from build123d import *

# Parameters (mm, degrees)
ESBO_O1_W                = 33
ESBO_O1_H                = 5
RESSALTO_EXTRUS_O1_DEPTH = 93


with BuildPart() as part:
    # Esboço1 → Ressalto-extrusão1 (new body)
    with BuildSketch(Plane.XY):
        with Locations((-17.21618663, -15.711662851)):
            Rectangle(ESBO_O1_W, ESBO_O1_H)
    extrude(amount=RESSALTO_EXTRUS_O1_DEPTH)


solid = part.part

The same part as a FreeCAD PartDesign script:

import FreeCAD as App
import Part
import Sketcher
from FreeCAD import Vector
Q = App.Units.Quantity


def add_polygon(sketch, points):
    """Adds a closed chain of lines whose ends are joined by coincident constraints."""
    first, n = sketch.GeometryCount, len(points)
    for a, b in zip(points, points[1:] + points[:1]):
        sketch.addGeometry(Part.LineSegment(App.Vector(*a, 0), App.Vector(*b, 0)), False)
    for i in range(n):
        sketch.addConstraint(Sketcher.Constraint("Coincident", first + i, 2, first + (i + 1) % n, 1))

doc = App.newDocument("Part")
body = doc.addObject("PartDesign::Body", "Body")

# Sketch on XY plane
sketch1 = doc.addObject("Sketcher::SketchObject", "Sketch")
body.addObject(sketch1)
sketch1.AttachmentSupport = (doc.XY_Plane, [""])
sketch1.MapMode = "FlatFace"
add_polygon(sketch1, [(-33.716187, -13.211663), (-33.716187, -18.211663), (-0.716187, -18.211663), (-0.716187, -13.211663)])  # lines 0-3
sketch1.addConstraint([
    Sketcher.Constraint("Vertical", 0),
    Sketcher.Constraint("Horizontal", 1),
    Sketcher.Constraint("Vertical", 2),
    Sketcher.Constraint("Horizontal", 3),
    Sketcher.Constraint("DistanceX", 1, 1, 1, 2, Q("33 mm")),
    Sketcher.Constraint("DistanceY", 0, 2, 0, 1, Q("5 mm")),
    Sketcher.Constraint("DistanceX", 0, 2, -1, 1, Q("33.716187 mm")),
    Sketcher.Constraint("DistanceY", 0, 2, -1, 1, Q("18.211663 mm")),
])
pad1 = doc.addObject("PartDesign::Pad", "Pad")
body.addObject(pad1)
pad1.Profile = sketch1
pad1.Length = 93

doc.recompute()
